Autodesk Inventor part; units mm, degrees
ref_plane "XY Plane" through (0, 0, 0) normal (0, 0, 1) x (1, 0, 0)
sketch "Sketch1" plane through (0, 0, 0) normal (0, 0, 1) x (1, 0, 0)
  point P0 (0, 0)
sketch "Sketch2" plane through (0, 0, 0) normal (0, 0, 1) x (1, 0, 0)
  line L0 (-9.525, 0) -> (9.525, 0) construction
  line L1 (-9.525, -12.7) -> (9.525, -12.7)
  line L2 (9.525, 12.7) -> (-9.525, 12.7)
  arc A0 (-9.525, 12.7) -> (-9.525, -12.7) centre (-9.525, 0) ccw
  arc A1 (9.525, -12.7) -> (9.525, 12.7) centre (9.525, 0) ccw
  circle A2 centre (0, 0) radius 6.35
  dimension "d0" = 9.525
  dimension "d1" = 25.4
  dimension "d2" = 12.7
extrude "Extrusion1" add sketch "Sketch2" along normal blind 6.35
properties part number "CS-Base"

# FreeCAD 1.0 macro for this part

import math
import FreeCAD as App
import Part
import Sketcher
from FreeCAD import Vector
Q = App.Units.Quantity

doc = App.newDocument("Part")
body = doc.addObject("PartDesign::Body", "Body")

sketch1 = doc.addObject("Sketcher::SketchObject", "Sketch")
body.addObject(sketch1)
sketch1.AttachmentSupport = (doc.XY_Plane, [""])
sketch1.MapMode = "FlatFace"
sketch1.addGeometry(Part.ArcOfCircle(Part.Circle(Vector(-10, 0, 0), Vector(0, 0, 1), 13), math.radians(90), math.radians(270)), False)
sketch1.addGeometry(Part.LineSegment(Vector(-10, -13, 0), Vector(10, -13, 0)), False)
sketch1.addGeometry(Part.ArcOfCircle(Part.Circle(Vector(10, 0, 0), Vector(0, 0, 1), 13), math.radians(-90), math.radians(90)), False)
sketch1.addGeometry(Part.LineSegment(Vector(10, 13, 0), Vector(-10, 13, 0)), False)
sketch1.addGeometry(Part.Circle(Vector(0, 0, 0), Vector(0, 0, 1), 6), False)
sketch1.addConstraint(Sketcher.Constraint("Tangent", 0, 2, 1, 1))
sketch1.addConstraint(Sketcher.Constraint("Tangent", 1, 2, 2, 1))
sketch1.addConstraint(Sketcher.Constraint("Tangent", 2, 2, 3, 1))
sketch1.addConstraint(Sketcher.Constraint("Tangent", 3, 2, 0, 1))
sketch1.addConstraint(Sketcher.Constraint("Horizontal", 1))
sketch1.addConstraint(Sketcher.Constraint("Horizontal", 3))
sketch1.addConstraint(Sketcher.Constraint("Coincident", 4, 3, -1, 1))
sketch1.addConstraint(Sketcher.Constraint("Symmetric", 0, 3, 2, 3, -1, 1))
sketch1.addConstraint(Sketcher.Constraint("Diameter", 4, Q("0.5 in")))
sketch1.addConstraint(Sketcher.Constraint("Radius", 0, Q("0.5 in")))
sketch1.addConstraint(Sketcher.Constraint("DistanceX", 0, 3, -1, 1, Q("0.375 in")))
pad1 = doc.addObject("PartDesign::Pad", "Pad")
body.addObject(pad1)
pad1.Profile = sketch1
pad1.Length = Q("0.25 in")

doc.recompute()
